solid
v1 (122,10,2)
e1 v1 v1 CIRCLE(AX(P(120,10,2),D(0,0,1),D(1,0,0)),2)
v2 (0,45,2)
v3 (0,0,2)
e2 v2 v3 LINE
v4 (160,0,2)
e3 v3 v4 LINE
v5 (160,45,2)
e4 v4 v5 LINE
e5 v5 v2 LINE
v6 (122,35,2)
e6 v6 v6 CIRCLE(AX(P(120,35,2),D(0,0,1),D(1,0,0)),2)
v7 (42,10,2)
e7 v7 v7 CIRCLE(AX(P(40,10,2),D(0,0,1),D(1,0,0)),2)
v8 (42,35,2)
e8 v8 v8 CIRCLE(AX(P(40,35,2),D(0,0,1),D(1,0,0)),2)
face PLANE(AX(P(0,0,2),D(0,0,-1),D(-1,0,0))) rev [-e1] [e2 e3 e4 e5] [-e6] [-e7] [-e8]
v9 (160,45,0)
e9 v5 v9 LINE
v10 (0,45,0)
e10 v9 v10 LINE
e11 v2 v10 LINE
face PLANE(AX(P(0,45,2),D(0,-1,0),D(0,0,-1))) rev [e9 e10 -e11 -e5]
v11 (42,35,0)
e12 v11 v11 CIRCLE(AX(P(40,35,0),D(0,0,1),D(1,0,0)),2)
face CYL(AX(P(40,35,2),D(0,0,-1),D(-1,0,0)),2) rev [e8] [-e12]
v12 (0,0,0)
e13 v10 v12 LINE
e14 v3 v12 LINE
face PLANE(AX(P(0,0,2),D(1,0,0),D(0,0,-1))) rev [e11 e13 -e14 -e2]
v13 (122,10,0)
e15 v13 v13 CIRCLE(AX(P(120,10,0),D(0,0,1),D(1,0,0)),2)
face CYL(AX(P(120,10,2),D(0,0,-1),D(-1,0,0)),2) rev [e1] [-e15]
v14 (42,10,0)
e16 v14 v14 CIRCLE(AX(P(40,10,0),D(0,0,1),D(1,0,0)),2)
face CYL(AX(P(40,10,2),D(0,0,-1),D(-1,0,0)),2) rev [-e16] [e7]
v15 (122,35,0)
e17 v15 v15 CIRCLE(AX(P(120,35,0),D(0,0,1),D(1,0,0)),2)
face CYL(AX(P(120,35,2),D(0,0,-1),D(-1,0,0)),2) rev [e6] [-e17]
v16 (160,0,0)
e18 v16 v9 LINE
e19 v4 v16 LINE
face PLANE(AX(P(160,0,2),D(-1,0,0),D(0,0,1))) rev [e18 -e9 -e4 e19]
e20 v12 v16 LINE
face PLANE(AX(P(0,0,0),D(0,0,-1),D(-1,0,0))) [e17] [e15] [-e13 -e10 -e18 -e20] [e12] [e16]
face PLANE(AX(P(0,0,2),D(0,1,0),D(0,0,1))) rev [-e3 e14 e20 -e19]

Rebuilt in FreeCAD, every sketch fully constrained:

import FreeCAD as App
import Part
import Sketcher

V = App.Vector


def add_polygon(sketch, points):
    """Adds a closed chain of lines whose ends are joined by coincident constraints."""
    first, n = sketch.GeometryCount, len(points)
    for a, b in zip(points, points[1:] + points[:1]):
        sketch.addGeometry(Part.LineSegment(App.Vector(*a, 0), App.Vector(*b, 0)), False)
    for i in range(n):
        sketch.addConstraint(Sketcher.Constraint("Coincident", first + i, 2, first + (i + 1) % n, 1))

doc = App.newDocument("Part")
body = doc.addObject("PartDesign::Body", "Body")

sketch1 = body.newObject("Sketcher::SketchObject", "Sketch")
sketch1.AttachmentSupport = (doc.getObject("XY_Plane"), [""])
sketch1.MapMode = "FlatFace"
add_polygon(sketch1, [(0, 45), (0, 0), (160, 0), (160, 45)])
sketch1.addGeometry(Part.Circle(V(40, 10, 0), V(0, 0, 1), 2), False)
sketch1.addGeometry(Part.Circle(V(120, 10, 0), V(0, 0, 1), 2), False)
sketch1.addGeometry(Part.Circle(V(40, 35, 0), V(0, 0, 1), 2), False)
sketch1.addGeometry(Part.Circle(V(120, 35, 0), V(0, 0, 1), 2), False)
sketch1.addConstraint(Sketcher.Constraint("Vertical", 0))
sketch1.addConstraint(Sketcher.Constraint("Horizontal", 1))
sketch1.addConstraint(Sketcher.Constraint("Vertical", 2))
sketch1.addConstraint(Sketcher.Constraint("Horizontal", 3))
sketch1.addConstraint(Sketcher.Constraint("Coincident", 0, 2, -1, 1))
sketch1.addConstraint(Sketcher.Constraint("Equal", 4, 5))
sketch1.addConstraint(Sketcher.Constraint("Equal", 5, 6))
sketch1.addConstraint(Sketcher.Constraint("Equal", 6, 7))
sketch1.addConstraint(Sketcher.Constraint("Horizontal", 4, 3, 5, 3))
sketch1.addConstraint(Sketcher.Constraint("Horizontal", 6, 3, 7, 3))
sketch1.addConstraint(Sketcher.Constraint("Vertical", 4, 3, 6, 3))
sketch1.addConstraint(Sketcher.Constraint("Vertical", 5, 3, 7, 3))
sketch1.addConstraint(Sketcher.Constraint("Diameter", 4, 4.0))
sketch1.addConstraint(Sketcher.Constraint("DistanceX", 1, 1, 1, 2, 160.0))
sketch1.addConstraint(Sketcher.Constraint("DistanceY", 0, 2, 0, 1, 45.0))
sketch1.addConstraint(Sketcher.Constraint("DistanceX", -1, 1, 4, 3, 40.0))
sketch1.addConstraint(Sketcher.Constraint("DistanceY", -1, 1, 4, 3, 10.0))
sketch1.addConstraint(Sketcher.Constraint("DistanceX", -1, 1, 5, 3, 120.0))
sketch1.addConstraint(Sketcher.Constraint("DistanceY", -1, 1, 6, 3, 35.0))
pad1 = body.newObject("PartDesign::Pad", "Pad")
pad1.Profile = sketch1
pad1.Length = 2

doc.recompute()
